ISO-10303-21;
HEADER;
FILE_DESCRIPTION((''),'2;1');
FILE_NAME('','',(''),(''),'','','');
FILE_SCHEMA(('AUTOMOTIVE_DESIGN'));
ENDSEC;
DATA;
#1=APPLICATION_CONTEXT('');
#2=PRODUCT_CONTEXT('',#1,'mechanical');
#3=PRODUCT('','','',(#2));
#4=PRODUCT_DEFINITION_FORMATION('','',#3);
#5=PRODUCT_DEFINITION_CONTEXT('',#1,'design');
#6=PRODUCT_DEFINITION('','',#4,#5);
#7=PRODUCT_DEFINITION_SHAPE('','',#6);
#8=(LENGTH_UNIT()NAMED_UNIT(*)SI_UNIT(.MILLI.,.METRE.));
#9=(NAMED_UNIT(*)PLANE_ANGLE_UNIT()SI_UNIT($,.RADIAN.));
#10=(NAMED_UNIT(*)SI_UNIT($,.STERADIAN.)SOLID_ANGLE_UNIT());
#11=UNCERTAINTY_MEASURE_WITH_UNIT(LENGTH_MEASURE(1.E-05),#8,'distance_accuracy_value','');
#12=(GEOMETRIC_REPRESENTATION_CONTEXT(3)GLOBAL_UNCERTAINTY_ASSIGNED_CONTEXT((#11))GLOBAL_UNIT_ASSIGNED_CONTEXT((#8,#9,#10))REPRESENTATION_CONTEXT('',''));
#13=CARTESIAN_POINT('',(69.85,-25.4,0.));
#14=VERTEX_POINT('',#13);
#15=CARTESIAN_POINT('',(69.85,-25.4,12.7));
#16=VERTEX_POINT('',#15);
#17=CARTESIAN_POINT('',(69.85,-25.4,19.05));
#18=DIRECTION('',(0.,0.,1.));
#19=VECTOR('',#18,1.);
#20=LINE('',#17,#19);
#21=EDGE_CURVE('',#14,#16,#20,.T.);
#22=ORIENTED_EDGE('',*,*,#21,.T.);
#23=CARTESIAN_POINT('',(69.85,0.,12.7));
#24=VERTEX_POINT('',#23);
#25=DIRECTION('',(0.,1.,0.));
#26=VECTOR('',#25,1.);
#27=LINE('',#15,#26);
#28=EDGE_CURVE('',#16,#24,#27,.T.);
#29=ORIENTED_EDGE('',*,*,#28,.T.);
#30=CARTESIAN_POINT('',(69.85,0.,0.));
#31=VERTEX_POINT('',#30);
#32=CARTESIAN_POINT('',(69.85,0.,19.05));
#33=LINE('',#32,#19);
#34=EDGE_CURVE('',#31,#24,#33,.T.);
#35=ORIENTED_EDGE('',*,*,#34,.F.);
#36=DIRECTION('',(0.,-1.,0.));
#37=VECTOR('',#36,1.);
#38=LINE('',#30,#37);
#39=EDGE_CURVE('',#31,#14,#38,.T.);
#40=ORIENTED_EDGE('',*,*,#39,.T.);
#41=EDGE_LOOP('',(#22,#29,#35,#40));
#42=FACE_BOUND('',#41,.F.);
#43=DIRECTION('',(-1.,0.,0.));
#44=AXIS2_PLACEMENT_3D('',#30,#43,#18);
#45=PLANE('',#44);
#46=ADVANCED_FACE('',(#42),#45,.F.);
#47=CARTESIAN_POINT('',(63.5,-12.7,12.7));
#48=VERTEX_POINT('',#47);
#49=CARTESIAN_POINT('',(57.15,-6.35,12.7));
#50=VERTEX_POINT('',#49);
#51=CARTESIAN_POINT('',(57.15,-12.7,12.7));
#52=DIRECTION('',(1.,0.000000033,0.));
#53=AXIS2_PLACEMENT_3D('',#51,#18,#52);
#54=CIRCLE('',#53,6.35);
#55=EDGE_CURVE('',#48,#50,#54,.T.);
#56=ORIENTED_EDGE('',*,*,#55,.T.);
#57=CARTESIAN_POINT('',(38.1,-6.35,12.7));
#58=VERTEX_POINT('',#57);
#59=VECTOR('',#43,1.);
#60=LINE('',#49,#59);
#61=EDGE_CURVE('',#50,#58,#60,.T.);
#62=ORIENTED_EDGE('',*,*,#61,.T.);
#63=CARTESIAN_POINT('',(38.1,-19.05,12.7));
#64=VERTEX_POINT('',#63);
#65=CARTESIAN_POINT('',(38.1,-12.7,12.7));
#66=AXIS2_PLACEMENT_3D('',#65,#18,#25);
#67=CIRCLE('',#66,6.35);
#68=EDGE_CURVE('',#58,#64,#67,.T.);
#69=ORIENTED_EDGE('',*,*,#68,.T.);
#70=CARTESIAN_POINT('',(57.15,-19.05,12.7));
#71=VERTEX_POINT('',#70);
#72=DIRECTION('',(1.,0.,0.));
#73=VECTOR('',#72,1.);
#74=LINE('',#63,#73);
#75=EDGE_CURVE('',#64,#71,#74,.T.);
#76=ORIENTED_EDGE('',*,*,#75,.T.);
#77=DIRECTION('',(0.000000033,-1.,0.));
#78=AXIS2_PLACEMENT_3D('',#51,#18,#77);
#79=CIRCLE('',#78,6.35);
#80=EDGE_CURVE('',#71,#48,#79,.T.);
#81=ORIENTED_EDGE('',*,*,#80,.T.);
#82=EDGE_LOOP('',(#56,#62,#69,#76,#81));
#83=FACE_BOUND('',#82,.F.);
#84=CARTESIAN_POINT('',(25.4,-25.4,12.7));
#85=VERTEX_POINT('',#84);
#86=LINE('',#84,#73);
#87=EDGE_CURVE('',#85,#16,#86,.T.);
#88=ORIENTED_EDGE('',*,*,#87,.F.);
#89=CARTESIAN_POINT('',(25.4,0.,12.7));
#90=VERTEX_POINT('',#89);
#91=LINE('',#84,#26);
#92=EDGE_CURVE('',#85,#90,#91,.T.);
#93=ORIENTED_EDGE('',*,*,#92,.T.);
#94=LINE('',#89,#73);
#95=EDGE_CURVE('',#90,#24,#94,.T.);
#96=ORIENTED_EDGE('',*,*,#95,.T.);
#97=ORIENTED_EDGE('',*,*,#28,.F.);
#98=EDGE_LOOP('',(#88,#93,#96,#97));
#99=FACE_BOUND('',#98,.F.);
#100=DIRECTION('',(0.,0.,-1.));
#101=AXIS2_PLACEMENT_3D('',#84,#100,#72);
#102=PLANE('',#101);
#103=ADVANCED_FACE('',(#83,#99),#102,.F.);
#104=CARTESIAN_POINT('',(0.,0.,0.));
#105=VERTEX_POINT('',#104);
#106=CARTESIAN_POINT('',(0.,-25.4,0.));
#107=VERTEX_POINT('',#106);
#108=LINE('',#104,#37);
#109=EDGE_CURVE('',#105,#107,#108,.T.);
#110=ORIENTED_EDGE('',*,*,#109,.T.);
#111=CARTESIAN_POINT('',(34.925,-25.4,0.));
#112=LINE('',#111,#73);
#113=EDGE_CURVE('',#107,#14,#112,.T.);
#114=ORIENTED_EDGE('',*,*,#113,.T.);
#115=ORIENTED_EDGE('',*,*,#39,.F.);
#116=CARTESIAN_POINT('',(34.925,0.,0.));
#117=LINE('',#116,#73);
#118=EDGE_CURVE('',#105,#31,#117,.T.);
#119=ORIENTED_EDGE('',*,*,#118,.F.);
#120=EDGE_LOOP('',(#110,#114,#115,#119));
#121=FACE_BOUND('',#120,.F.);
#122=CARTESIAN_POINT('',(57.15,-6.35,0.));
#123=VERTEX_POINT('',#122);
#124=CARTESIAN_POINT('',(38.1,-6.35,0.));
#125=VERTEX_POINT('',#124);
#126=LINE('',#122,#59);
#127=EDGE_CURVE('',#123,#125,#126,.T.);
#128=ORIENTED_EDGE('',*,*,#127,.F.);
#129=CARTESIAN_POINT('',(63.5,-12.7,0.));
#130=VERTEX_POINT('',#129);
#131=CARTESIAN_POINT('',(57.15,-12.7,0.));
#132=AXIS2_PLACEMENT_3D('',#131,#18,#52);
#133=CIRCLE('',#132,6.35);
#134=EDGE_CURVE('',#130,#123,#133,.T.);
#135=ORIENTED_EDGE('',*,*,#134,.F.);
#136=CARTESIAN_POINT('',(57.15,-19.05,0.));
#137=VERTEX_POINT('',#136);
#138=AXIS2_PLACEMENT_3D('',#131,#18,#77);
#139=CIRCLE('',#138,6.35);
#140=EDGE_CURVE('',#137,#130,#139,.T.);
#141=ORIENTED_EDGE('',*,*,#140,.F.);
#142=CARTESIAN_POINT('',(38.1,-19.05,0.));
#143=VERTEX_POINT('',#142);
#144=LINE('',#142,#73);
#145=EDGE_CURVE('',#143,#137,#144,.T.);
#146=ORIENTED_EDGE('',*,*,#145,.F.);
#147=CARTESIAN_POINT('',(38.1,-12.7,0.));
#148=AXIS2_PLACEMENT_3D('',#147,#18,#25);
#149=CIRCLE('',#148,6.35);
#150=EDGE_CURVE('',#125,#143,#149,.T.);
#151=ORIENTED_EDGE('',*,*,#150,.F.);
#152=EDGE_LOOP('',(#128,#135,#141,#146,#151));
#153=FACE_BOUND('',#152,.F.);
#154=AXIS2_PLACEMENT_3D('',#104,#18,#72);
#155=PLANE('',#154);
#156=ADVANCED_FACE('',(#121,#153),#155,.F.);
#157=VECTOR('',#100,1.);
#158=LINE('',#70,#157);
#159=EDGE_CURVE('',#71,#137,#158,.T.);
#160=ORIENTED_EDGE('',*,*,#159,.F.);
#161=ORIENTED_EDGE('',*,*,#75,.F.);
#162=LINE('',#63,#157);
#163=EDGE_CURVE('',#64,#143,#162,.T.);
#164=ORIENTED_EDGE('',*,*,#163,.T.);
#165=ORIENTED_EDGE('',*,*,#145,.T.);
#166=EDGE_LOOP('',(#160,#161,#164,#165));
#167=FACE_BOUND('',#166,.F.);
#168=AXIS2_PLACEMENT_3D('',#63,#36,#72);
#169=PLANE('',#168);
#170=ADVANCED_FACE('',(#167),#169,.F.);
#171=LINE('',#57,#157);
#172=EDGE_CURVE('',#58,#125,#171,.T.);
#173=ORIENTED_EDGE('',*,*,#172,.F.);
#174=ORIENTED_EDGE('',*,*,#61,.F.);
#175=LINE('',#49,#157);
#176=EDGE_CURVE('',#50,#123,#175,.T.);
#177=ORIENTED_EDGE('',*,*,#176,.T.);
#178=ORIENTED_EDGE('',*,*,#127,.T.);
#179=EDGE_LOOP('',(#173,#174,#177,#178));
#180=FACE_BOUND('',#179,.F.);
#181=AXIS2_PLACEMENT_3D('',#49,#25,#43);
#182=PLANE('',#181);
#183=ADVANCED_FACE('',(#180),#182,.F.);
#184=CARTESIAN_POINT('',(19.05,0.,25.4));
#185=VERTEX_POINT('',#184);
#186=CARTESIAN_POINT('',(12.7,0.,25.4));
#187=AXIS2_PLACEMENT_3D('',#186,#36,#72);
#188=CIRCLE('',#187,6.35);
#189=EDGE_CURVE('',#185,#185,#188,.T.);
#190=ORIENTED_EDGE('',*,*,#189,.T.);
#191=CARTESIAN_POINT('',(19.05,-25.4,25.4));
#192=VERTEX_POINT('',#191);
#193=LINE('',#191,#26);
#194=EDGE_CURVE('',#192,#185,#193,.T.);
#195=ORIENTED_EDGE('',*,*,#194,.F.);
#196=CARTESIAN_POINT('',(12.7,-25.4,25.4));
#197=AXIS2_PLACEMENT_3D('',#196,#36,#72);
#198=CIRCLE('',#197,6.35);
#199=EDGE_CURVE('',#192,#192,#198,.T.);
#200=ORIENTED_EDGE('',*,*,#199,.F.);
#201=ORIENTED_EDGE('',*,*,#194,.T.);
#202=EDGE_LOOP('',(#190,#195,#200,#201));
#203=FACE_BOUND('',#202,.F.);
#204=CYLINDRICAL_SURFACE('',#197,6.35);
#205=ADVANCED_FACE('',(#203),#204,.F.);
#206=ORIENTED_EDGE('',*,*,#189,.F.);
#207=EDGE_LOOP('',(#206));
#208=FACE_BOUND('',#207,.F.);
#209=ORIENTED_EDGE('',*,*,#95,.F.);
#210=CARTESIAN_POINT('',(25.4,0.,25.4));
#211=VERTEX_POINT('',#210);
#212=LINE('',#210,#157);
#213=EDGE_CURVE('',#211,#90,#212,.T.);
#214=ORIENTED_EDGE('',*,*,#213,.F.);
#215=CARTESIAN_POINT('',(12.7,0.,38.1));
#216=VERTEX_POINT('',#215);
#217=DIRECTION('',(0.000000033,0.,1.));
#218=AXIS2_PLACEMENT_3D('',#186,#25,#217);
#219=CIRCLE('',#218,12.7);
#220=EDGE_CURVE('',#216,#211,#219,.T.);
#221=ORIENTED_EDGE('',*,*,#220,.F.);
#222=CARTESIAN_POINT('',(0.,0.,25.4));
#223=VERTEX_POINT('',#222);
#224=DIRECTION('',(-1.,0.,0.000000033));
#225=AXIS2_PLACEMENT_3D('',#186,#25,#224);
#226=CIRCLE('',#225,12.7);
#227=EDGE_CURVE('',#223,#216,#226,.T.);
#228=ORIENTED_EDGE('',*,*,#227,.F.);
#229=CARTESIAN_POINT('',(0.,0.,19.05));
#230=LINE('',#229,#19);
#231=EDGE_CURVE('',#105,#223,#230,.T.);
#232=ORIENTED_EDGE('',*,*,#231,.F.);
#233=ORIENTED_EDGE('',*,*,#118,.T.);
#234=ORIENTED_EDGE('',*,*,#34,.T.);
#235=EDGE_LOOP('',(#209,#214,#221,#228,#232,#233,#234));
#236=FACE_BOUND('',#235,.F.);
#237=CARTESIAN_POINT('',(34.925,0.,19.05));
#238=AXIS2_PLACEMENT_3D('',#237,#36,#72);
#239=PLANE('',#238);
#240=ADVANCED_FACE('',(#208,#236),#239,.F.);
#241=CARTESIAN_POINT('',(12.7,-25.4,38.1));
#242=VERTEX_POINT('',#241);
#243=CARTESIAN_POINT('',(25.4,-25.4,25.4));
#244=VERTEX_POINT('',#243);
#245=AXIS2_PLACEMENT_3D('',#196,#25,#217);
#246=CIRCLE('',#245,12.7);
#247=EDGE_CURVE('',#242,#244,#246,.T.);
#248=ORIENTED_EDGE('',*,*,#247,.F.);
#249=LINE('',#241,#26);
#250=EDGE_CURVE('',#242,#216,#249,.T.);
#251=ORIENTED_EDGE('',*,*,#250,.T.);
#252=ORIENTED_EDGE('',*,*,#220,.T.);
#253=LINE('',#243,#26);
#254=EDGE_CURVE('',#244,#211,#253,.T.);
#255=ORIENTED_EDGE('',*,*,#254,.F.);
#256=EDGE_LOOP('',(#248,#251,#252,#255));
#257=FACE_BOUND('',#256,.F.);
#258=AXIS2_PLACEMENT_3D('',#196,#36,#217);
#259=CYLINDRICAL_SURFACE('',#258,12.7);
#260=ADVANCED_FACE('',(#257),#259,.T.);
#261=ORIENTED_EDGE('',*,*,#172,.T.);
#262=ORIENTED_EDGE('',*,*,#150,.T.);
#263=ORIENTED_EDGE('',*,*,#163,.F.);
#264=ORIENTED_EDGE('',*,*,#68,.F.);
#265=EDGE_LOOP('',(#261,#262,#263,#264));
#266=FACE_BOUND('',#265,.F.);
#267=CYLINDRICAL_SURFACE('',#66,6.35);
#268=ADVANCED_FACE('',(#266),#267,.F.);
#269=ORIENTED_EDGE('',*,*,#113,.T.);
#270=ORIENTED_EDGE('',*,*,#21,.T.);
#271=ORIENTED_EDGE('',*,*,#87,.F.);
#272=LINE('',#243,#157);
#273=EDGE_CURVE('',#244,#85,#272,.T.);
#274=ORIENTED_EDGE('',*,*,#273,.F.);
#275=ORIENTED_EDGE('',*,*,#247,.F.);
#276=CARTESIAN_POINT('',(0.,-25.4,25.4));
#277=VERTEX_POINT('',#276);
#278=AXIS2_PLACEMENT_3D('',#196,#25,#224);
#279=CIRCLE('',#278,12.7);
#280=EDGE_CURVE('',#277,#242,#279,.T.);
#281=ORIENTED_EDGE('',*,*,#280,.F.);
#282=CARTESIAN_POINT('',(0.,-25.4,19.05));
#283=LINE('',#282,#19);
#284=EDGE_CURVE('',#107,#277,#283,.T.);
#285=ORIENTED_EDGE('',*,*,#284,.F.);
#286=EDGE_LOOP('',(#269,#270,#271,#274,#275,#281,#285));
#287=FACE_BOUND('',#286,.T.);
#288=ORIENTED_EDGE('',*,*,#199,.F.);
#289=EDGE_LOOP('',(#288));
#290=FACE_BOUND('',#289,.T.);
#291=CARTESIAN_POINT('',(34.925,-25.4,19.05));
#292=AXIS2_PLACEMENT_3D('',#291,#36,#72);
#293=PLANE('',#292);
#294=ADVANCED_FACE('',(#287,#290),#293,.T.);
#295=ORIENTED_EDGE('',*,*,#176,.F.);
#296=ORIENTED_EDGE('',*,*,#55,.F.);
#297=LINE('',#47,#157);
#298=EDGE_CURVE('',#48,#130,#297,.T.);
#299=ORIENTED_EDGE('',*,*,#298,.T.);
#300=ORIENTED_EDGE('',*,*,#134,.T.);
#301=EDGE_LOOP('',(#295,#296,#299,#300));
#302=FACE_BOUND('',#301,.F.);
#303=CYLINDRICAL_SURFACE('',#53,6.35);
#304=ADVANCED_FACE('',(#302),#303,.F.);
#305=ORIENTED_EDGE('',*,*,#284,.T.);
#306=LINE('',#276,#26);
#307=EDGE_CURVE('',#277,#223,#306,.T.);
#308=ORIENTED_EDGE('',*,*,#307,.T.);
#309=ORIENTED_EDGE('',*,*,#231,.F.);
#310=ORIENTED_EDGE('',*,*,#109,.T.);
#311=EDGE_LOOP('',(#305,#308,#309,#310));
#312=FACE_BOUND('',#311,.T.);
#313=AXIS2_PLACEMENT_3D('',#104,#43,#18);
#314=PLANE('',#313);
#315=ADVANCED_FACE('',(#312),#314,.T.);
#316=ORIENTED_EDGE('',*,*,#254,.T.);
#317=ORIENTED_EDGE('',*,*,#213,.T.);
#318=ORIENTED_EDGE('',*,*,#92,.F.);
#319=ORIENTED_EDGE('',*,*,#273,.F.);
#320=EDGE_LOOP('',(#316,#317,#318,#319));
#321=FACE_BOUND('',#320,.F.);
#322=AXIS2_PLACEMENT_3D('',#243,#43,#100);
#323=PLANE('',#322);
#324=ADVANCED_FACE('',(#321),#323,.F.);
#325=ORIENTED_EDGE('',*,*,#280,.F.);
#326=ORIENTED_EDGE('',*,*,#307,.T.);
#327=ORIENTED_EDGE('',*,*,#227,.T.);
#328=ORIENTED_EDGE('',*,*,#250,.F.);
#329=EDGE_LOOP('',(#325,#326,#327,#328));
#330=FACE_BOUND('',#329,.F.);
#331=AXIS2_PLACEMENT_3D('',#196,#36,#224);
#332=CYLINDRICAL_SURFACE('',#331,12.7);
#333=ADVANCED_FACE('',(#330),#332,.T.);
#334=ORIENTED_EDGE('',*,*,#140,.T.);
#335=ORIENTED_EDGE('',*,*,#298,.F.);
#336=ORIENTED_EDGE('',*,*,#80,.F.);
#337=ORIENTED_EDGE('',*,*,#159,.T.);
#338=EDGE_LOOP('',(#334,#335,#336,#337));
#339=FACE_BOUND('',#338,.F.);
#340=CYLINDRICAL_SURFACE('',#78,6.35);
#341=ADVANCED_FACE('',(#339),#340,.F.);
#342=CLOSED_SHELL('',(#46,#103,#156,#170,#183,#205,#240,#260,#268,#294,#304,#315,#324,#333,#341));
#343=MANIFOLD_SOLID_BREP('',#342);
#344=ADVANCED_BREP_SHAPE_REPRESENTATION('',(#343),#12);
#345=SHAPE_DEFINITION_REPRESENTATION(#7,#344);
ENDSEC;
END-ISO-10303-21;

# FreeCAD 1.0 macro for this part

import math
import FreeCAD as App
import Part
import Sketcher
from FreeCAD import Vector
Q = App.Units.Quantity


def add_polygon(sketch, points):
    """Adds a closed chain of lines whose ends are joined by coincident constraints."""
    first, n = sketch.GeometryCount, len(points)
    for a, b in zip(points, points[1:] + points[:1]):
        sketch.addGeometry(Part.LineSegment(App.Vector(*a, 0), App.Vector(*b, 0)), False)
    for i in range(n):
        sketch.addConstraint(Sketcher.Constraint("Coincident", first + i, 2, first + (i + 1) % n, 1))

doc = App.newDocument("Part")
body = doc.addObject("PartDesign::Body", "Body")

# Sketch on XZ plane
sketch1 = body.newObject("Sketcher::SketchObject", "Sketch")
sketch1.AttachmentSupport = (doc.getObject("XZ_Plane"), [""])
sketch1.MapMode = "FlatFace"
add_polygon(sketch1, [(0, 38), (0, 0), (70, 0), (70, 38)])  # lines 0-3
sketch1.addConstraint(Sketcher.Constraint("Vertical", 0))
sketch1.addConstraint(Sketcher.Constraint("Horizontal", 1))
sketch1.addConstraint(Sketcher.Constraint("Vertical", 2))
sketch1.addConstraint(Sketcher.Constraint("Horizontal", 3))
sketch1.addConstraint(Sketcher.Constraint("Coincident", 0, 2, -1, 1))
sketch1.addConstraint(Sketcher.Constraint("DistanceY", 0, 2, 0, 1, Q("1.5 in")))
sketch1.addConstraint(Sketcher.Constraint("DistanceX", 1, 1, 1, 2, Q("2.75 in")))
pad1 = body.newObject("PartDesign::Pad", "Pad")
pad1.Profile = sketch1
pad1.Length = Q("1 in")

# Sketch on XZ plane
sketch2 = body.newObject("Sketcher::SketchObject", "Sketch001")
sketch2.AttachmentSupport = (doc.getObject("XZ_Plane"), [""])
sketch2.MapMode = "FlatFace"
sketch2.AttachmentOffset = App.Placement(Vector(0, 0, 1 * 25.4), App.Rotation())
sketch2.addGeometry(Part.Circle(Vector(13, 25, 0), Vector(0, 0, 1), 6), False)
sketch2.addGeometry(Part.ArcOfCircle(Part.Circle(Vector(13, 25, 0), Vector(0, 0, 1), 13), math.radians(0), math.radians(90)), False)
sketch2.addGeometry(Part.LineSegment(Vector(25, 25, 0), Vector(25, 13, 0)), False)
sketch2.addGeometry(Part.LineSegment(Vector(25, 13, 0), Vector(70, 13, 0)), False)
sketch2.addGeometry(Part.LineSegment(Vector(70, 13, 0), Vector(70, 38, 0)), False)
sketch2.addGeometry(Part.LineSegment(Vector(70, 38, 0), Vector(13, 38, 0)), False)
sketch2.addGeometry(Part.ArcOfCircle(Part.Circle(Vector(13, 25, 0), Vector(0, 0, 1), 13), math.radians(90), math.radians(180)), False)
sketch2.addGeometry(Part.LineSegment(Vector(13, 38, 0), Vector(0, 38, 0)), False)
sketch2.addGeometry(Part.LineSegment(Vector(0, 38, 0), Vector(0, 25, 0)), False)
sketch2.addConstraint(Sketcher.Constraint("Tangent", 1, 1, 2, 1))
sketch2.addConstraint(Sketcher.Constraint("Coincident", 2, 2, 3, 1))
sketch2.addConstraint(Sketcher.Constraint("Coincident", 3, 2, 4, 1))
sketch2.addConstraint(Sketcher.Constraint("Coincident", 4, 2, 5, 1))
sketch2.addConstraint(Sketcher.Constraint("Tangent", 5, 2, 1, 2))
sketch2.addConstraint(Sketcher.Constraint("Tangent", 6, 1, 7, 1))
sketch2.addConstraint(Sketcher.Constraint("Coincident", 7, 2, 8, 1))
sketch2.addConstraint(Sketcher.Constraint("Tangent", 8, 2, 6, 2))
sketch2.addConstraint(Sketcher.Constraint("Vertical", 2))
sketch2.addConstraint(Sketcher.Constraint("Horizontal", 3))
sketch2.addConstraint(Sketcher.Constraint("Vertical", 4))
sketch2.addConstraint(Sketcher.Constraint("Horizontal", 5))
sketch2.addConstraint(Sketcher.Constraint("Horizontal", 7))
sketch2.addConstraint(Sketcher.Constraint("Vertical", 8))
sketch2.addConstraint(Sketcher.Constraint("Coincident", 1, 3, 0, 3))
sketch2.addConstraint(Sketcher.Constraint("Coincident", 6, 3, 0, 3))
sketch2.addConstraint(Sketcher.Constraint("Equal", 1, 6))
sketch2.addConstraint(Sketcher.Constraint("PointOnObject", 7, 2, -2))
sketch2.addConstraint(Sketcher.Constraint("Equal", 7, 2))
sketch2.addConstraint(Sketcher.Constraint("Diameter", 0, Q("0.5 in")))
sketch2.addConstraint(Sketcher.Constraint("Radius", 1, Q("0.5 in")))
sketch2.addConstraint(Sketcher.Constraint("DistanceY", -1, 1, 0, 3, Q("1 in")))
sketch2.addConstraint(Sketcher.Constraint("DistanceX", 3, 1, 3, 2, Q("1.75 in")))
pocket1 = body.newObject("PartDesign::Pocket", "Pocket")
pocket1.Profile = sketch2
pocket1.Length = Q("1 in")

# Sketch on XY plane
sketch3 = body.newObject("Sketcher::SketchObject", "Sketch002")
sketch3.AttachmentSupport = (doc.getObject("XY_Plane"), [""])
sketch3.MapMode = "FlatFace"
sketch3.AttachmentOffset = App.Placement(Vector(0, 0, 0.5 * 25.4), App.Rotation())
sketch3.addGeometry(Part.LineSegment(Vector(57, -6, 0), Vector(38, -6, 0)), False)
sketch3.addGeometry(Part.ArcOfCircle(Part.Circle(Vector(38, -13, 0), Vector(0, 0, 1), 6), math.radians(90), math.radians(270)), False)
sketch3.addGeometry(Part.LineSegment(Vector(38, -19, 0), Vector(57, -19, 0)), False)
sketch3.addGeometry(Part.ArcOfCircle(Part.Circle(Vector(57, -13, 0), Vector(0, 0, 1), 6), math.radians(-90), math.radians(0)), False)
sketch3.addGeometry(Part.ArcOfCircle(Part.Circle(Vector(57, -13, 0), Vector(0, 0, 1), 6), math.radians(0), math.radians(90)), False)
sketch3.addConstraint(Sketcher.Constraint("Tangent", 0, 2, 1, 1))
sketch3.addConstraint(Sketcher.Constraint("Tangent", 1, 2, 2, 1))
sketch3.addConstraint(Sketcher.Constraint("Tangent", 2, 2, 3, 1))
sketch3.addConstraint(Sketcher.Constraint("Tangent", 3, 2, 4, 1))
sketch3.addConstraint(Sketcher.Constraint("Tangent", 4, 2, 0, 1))
sketch3.addConstraint(Sketcher.Constraint("Horizontal", 0))
sketch3.addConstraint(Sketcher.Constraint("Horizontal", 2))
sketch3.addConstraint(Sketcher.Constraint("Equal", 1, 3))
sketch3.addConstraint(Sketcher.Constraint("Horizontal", 4, 3, 3, 2))
sketch3.addConstraint(Sketcher.Constraint("Radius", 1, Q("0.25 in")))
sketch3.addConstraint(Sketcher.Constraint("DistanceX", 1, 3, 3, 2, Q("1 in")))
sketch3.addConstraint(Sketcher.Constraint("DistanceX", -1, 1, 1, 3, Q("1.5 in")))
sketch3.addConstraint(Sketcher.Constraint("DistanceY", 1, 3, -1, 1, Q("0.5 in")))
pocket2 = body.newObject("PartDesign::Pocket", "Pocket001")
pocket2.Profile = sketch3
pocket2.Length = Q("0.5 in")

doc.recompute()
